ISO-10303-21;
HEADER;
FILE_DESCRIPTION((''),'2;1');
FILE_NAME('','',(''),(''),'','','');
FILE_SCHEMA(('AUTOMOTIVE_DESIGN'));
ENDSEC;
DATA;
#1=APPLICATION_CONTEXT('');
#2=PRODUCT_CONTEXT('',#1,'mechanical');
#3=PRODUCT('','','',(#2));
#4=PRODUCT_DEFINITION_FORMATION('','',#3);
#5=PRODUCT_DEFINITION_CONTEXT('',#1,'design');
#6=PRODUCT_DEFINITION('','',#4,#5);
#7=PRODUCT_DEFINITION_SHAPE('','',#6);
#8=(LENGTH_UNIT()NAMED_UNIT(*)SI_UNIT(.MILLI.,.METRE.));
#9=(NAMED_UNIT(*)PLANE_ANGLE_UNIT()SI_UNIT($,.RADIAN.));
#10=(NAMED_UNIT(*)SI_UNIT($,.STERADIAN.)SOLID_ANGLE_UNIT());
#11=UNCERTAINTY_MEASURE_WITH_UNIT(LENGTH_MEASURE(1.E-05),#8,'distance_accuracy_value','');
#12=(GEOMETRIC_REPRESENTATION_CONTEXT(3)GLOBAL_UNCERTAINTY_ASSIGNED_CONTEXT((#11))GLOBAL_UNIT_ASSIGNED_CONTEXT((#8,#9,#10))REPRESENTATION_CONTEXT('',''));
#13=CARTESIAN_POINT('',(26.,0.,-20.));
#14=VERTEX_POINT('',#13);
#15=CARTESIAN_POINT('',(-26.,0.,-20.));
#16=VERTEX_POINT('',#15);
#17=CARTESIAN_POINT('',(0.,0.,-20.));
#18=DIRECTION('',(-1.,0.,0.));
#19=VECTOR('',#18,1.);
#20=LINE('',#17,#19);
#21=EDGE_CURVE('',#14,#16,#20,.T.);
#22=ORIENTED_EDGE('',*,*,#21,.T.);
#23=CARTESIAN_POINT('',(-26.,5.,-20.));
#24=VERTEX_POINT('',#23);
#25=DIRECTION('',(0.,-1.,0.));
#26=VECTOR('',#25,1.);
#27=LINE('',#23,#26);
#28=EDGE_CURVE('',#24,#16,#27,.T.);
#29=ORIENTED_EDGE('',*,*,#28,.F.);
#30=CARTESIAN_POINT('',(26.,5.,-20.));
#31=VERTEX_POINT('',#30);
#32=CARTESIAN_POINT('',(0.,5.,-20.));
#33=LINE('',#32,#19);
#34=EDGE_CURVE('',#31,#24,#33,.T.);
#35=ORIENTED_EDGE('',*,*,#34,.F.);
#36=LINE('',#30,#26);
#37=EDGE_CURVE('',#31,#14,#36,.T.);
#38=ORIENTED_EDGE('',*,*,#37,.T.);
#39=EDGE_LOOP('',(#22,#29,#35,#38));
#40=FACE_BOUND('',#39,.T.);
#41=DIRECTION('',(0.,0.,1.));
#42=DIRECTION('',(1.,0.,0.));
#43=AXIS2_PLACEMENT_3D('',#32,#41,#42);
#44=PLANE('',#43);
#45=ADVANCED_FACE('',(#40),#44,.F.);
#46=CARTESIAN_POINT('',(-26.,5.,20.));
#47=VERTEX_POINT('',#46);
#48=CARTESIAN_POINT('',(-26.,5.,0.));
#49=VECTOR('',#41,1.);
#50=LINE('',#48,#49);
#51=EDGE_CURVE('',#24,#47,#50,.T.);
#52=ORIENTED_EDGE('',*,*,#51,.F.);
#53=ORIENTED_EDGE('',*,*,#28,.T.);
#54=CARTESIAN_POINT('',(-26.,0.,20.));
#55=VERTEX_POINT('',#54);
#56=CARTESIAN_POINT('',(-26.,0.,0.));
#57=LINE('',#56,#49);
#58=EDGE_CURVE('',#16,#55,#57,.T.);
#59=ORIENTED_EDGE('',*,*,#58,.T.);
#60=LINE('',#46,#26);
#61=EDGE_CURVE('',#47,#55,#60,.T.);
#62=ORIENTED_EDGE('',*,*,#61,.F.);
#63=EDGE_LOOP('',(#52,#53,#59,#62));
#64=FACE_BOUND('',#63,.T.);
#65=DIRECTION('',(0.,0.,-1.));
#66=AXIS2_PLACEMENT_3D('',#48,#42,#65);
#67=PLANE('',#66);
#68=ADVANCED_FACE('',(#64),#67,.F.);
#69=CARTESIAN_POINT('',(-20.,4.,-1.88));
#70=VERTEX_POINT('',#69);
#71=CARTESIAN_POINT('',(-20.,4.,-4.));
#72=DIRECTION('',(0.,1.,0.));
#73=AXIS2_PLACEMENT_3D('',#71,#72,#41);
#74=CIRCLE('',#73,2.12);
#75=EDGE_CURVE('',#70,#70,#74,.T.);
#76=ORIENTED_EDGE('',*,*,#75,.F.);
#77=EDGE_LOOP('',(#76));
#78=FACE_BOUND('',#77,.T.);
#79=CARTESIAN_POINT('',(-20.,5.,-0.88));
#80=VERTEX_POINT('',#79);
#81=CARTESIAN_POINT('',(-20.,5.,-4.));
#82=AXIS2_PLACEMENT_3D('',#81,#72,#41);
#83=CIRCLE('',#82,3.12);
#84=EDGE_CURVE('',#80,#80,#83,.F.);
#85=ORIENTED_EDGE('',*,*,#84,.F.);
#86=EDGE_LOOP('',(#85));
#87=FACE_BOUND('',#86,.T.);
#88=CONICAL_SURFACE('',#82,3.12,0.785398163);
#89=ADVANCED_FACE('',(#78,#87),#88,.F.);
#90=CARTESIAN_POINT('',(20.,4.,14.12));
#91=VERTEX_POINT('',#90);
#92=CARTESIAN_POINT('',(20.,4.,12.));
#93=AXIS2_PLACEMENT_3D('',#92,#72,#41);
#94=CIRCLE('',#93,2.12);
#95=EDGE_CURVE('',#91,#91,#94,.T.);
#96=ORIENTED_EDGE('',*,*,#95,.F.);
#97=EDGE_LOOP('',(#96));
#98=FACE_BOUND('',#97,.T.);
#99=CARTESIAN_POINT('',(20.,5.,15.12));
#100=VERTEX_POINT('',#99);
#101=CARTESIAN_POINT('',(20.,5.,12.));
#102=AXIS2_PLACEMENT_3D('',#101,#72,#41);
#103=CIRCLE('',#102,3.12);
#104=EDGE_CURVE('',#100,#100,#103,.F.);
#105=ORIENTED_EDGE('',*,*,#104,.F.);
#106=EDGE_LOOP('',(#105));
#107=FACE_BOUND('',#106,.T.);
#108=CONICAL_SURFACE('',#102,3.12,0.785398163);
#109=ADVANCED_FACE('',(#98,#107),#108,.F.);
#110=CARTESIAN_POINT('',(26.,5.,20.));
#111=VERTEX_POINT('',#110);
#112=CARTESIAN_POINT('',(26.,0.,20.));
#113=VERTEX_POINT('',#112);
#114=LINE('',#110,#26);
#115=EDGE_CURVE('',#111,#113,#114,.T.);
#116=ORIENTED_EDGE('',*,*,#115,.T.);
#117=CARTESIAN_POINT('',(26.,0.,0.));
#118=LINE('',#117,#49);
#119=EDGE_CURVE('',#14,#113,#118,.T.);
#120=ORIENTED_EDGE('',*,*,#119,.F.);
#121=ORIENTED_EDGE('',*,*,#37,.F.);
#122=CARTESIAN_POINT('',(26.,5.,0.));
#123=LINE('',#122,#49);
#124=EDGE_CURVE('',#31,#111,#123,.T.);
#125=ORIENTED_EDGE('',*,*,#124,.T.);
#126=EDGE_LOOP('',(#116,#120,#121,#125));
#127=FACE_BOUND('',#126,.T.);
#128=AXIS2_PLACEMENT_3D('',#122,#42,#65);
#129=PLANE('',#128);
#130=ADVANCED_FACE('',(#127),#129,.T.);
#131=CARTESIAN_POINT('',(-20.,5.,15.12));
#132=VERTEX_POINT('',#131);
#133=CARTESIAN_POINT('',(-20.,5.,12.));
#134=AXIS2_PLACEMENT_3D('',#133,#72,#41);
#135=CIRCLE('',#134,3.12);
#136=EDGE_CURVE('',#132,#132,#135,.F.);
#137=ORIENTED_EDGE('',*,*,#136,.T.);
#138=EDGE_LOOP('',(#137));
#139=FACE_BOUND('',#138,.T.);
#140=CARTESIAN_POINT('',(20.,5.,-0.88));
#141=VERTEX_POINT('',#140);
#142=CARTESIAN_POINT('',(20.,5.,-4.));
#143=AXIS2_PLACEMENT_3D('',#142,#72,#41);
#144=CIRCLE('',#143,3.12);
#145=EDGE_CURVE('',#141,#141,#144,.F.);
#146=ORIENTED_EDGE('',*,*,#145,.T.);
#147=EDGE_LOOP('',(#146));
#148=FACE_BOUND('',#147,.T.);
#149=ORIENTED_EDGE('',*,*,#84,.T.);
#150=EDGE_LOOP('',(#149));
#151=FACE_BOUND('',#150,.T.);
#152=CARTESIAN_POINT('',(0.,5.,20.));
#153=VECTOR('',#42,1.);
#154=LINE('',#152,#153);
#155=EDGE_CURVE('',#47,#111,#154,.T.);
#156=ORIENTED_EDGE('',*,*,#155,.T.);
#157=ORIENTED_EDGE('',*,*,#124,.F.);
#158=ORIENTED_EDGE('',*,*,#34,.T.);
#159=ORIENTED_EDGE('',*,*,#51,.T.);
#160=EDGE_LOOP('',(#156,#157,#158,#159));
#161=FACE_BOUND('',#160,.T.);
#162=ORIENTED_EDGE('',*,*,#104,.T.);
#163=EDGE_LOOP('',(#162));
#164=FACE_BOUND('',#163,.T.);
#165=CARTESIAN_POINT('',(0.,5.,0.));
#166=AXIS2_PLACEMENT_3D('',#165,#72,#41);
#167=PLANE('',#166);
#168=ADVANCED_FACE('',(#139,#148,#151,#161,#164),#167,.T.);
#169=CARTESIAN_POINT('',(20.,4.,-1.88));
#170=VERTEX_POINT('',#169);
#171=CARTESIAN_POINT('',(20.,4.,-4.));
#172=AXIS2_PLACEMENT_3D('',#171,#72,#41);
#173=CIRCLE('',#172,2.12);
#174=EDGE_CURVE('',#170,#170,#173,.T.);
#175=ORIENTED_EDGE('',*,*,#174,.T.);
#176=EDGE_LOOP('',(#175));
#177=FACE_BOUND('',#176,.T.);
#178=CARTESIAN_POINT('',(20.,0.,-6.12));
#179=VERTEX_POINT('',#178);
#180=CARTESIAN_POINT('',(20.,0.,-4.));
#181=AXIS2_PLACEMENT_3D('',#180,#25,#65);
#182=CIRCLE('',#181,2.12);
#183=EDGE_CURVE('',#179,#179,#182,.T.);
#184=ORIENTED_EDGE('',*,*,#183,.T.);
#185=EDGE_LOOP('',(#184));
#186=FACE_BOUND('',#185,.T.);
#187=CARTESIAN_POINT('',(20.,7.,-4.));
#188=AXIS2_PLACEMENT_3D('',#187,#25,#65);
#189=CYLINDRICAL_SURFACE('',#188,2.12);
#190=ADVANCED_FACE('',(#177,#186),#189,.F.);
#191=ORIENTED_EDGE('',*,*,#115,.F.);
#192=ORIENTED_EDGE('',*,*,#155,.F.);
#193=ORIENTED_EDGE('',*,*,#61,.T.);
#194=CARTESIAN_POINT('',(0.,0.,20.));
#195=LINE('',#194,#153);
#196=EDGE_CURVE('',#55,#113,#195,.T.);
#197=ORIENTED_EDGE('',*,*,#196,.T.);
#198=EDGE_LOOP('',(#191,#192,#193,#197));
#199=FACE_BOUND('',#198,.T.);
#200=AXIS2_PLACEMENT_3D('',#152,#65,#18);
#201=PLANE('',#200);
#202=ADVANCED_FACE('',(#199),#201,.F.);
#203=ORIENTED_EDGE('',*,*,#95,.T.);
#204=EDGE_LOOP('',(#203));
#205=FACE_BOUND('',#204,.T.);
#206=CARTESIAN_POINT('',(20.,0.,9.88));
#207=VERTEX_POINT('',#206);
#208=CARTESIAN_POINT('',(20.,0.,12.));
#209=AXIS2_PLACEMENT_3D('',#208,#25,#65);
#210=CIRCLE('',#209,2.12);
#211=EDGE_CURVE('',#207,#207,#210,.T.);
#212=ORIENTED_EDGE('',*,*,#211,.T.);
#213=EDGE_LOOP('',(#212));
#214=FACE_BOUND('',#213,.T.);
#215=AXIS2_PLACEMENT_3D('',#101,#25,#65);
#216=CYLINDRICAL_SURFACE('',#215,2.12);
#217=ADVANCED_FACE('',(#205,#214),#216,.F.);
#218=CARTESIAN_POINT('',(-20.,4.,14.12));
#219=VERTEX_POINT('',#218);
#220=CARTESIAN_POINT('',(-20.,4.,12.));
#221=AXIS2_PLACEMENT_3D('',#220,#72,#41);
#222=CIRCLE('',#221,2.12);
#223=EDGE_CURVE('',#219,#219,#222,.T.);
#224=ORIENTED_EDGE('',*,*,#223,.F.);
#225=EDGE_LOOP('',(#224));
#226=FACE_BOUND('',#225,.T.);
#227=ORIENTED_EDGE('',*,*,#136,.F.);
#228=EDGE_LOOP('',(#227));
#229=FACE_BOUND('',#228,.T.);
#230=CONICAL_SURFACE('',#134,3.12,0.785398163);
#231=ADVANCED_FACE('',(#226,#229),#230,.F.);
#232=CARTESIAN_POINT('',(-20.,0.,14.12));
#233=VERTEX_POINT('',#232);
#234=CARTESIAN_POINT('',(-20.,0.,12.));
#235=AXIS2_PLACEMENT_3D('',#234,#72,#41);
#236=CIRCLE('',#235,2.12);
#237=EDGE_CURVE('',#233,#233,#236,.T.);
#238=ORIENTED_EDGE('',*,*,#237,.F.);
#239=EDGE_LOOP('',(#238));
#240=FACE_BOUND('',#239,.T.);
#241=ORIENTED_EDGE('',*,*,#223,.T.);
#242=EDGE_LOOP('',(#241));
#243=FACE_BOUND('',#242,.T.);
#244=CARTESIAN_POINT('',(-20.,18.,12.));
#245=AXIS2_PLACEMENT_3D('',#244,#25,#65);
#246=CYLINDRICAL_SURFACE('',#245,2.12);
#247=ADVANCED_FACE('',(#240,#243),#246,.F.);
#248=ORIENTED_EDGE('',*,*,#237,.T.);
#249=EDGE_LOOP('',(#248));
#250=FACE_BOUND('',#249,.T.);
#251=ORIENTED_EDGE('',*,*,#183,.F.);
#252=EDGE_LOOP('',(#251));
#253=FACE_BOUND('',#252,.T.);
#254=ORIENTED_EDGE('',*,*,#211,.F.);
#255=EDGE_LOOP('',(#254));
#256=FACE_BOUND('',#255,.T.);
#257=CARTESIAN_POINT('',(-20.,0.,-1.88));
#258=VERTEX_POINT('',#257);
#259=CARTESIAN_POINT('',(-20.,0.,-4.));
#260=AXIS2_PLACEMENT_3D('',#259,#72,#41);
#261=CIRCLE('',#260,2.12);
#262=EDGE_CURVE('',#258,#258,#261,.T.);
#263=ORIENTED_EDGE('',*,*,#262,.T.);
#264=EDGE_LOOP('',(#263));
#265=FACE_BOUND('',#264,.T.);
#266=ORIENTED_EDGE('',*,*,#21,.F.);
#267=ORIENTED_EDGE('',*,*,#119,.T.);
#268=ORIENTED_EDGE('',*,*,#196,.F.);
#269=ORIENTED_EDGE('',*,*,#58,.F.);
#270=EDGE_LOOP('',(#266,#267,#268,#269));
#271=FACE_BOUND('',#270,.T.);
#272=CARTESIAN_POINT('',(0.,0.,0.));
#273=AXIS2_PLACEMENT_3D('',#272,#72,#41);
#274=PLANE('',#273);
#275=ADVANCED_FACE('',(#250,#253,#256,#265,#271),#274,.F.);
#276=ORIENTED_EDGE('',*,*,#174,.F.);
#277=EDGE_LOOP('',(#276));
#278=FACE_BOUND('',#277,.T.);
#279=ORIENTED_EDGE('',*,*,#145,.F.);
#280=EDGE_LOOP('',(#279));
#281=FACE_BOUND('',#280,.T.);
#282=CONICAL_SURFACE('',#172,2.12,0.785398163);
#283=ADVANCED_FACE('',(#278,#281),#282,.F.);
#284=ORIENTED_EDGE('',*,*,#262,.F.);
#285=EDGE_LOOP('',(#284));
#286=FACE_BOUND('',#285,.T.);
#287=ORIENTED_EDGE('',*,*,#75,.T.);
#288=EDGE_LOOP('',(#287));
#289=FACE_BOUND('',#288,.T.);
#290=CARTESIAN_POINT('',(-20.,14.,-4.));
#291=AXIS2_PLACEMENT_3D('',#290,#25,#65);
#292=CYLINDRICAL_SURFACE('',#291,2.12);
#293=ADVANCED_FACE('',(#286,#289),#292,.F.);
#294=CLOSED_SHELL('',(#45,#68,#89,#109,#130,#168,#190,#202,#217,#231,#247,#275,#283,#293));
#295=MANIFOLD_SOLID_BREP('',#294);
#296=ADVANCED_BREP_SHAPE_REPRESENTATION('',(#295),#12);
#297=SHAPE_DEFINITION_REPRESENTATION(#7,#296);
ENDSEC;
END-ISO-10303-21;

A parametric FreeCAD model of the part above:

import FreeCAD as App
import Part
import Sketcher
Q = App.Units.Quantity


def edges_at(feature, points):
    """Names of the edges that pass closest to the given points."""
    edges = feature.Shape.Edges
    near = lambda p: min(range(len(edges)), key=lambda i: edges[i].distToShape(Part.Vertex(*p))[0])
    return sorted({f"Edge{near(p) + 1}" for p in points})


def add_polygon(sketch, points):
    """Adds a closed chain of lines whose ends are joined by coincident constraints."""
    first, n = sketch.GeometryCount, len(points)
    for a, b in zip(points, points[1:] + points[:1]):
        sketch.addGeometry(Part.LineSegment(App.Vector(*a, 0), App.Vector(*b, 0)), False)
    for i in range(n):
        sketch.addConstraint(Sketcher.Constraint("Coincident", first + i, 2, first + (i + 1) % n, 1))

doc = App.newDocument("Part")
body = doc.addObject("PartDesign::Body", "Body")

sketch1 = body.newObject("Sketcher::SketchObject", "Sketch")
sketch1.AttachmentSupport = (doc.getObject("XZ_Plane"), [""])
sketch1.MapMode = "FlatFace"
add_polygon(sketch1, [(-26, -20), (-26, 20), (26, 20), (26, -20)])
sketch1.addGeometry(Part.Circle(App.Vector(-20, 12, 0), App.Vector(0, 0, 1), 2.8), False)
sketch1.addGeometry(Part.Circle(App.Vector(20, 12, 0), App.Vector(0, 0, 1), 2.8), False)
sketch1.addGeometry(Part.Circle(App.Vector(-20, -4, 0), App.Vector(0, 0, 1), 2.8), False)
sketch1.addGeometry(Part.Circle(App.Vector(20, -4, 0), App.Vector(0, 0, 1), 2.8), False)
sketch1.addConstraint([
    Sketcher.Constraint("Vertical", 0),
    Sketcher.Constraint("Horizontal", 1),
    Sketcher.Constraint("Vertical", 2),
    Sketcher.Constraint("Horizontal", 3),
    Sketcher.Constraint("Equal", 4, 5),
    Sketcher.Constraint("Equal", 5, 6),
    Sketcher.Constraint("Equal", 6, 7),
    Sketcher.Constraint("Symmetric", 0, 2, 2, 2, -1, 1),
    Sketcher.Constraint("Symmetric", 4, 3, 5, 3, -2),
    Sketcher.Constraint("Symmetric", 6, 3, 7, 3, -2),
    Sketcher.Constraint("Vertical", 4, 3, 6, 3),
    Sketcher.Constraint("Diameter", 4, Q("5.5 mm")),
    Sketcher.Constraint("DistanceX", 1, 1, 1, 2, Q("52 mm")),
    Sketcher.Constraint("DistanceY", 0, 1, 0, 2, Q("40 mm")),
    Sketcher.Constraint("DistanceX", 4, 3, -1, 1, Q("20 mm")),
    Sketcher.Constraint("DistanceY", -1, 1, 4, 3, Q("12 mm")),
    Sketcher.Constraint("DistanceY", 6, 3, -1, 1, Q("4 mm")),
])
pad1 = body.newObject("PartDesign::Pad", "Pad")
pad1.Profile = sketch1
pad1.Length = 5
pad1.Reversed = True

sketch2 = body.newObject("Sketcher::SketchObject", "Sketch001")
sketch2.AttachmentSupport = (doc.getObject("XZ_Plane"), [""])
sketch2.MapMode = "FlatFace"
sketch2.addGeometry(Part.Circle(App.Vector(20, -4, 0), App.Vector(0, 0, 1), 2.8), False)
sketch2.addConstraint([
    Sketcher.Constraint("Diameter", 0, Q("5.5 mm")),
    Sketcher.Constraint("DistanceX", -1, 1, 0, 3, Q("20 mm")),
    Sketcher.Constraint("DistanceY", 0, 3, -1, 1, Q("4 mm")),
])
pad2 = body.newObject("PartDesign::Pad", "Pad001")
pad2.Profile = sketch2
pad2.Length = 5
pad2.Reversed = True

sketch3 = body.newObject("Sketcher::SketchObject", "Sketch002")
sketch3.AttachmentSupport = (doc.getObject("XZ_Plane"), [""])
sketch3.MapMode = "FlatFace"
sketch3.addGeometry(Part.Circle(App.Vector(20, -4, 0), App.Vector(0, 0, 1), 2.1), False)
sketch3.addConstraint([
    Sketcher.Constraint("Diameter", 0, Q("4.24 mm")),
    Sketcher.Constraint("DistanceX", -1, 1, 0, 3, Q("20 mm")),
    Sketcher.Constraint("DistanceY", 0, 3, -1, 1, Q("4 mm")),
])
pocket1 = body.newObject("PartDesign::Pocket", "Pocket")
pocket1.Profile = sketch3
pocket1.Length = 7
doc.recompute()

chamfer = body.newObject("PartDesign::Chamfer", "Chamfer")
chamfer.Base = (pocket1, edges_at(pocket1, [(20, 5, -1.88)]))
chamfer.Size = 1

sketch4 = body.newObject("Sketcher::SketchObject", "Sketch003")
sketch4.AttachmentSupport = (doc.getObject("XZ_Plane"), [""])
sketch4.MapMode = "FlatFace"
sketch4.addGeometry(Part.Circle(App.Vector(20, 12, 0), App.Vector(0, 0, 1), 2.8), False)
sketch4.addConstraint([
    Sketcher.Constraint("Diameter", 0, Q("5.5 mm")),
    Sketcher.Constraint("DistanceX", -1, 1, 0, 3, Q("20 mm")),
    Sketcher.Constraint("DistanceY", -1, 1, 0, 3, Q("12 mm")),
])
pad3 = body.newObject("PartDesign::Pad", "Pad002")
pad3.Profile = sketch4
pad3.Length = 5
pad3.Reversed = True

sketch5 = body.newObject("Sketcher::SketchObject", "Sketch004")
sketch5.AttachmentSupport = (doc.getObject("XZ_Plane"), [""])
sketch5.MapMode = "FlatFace"
sketch5.addGeometry(Part.Circle(App.Vector(20, 12, 0), App.Vector(0, 0, 1), 2.1), False)
sketch5.addConstraint([
    Sketcher.Constraint("Diameter", 0, Q("4.24 mm")),
    Sketcher.Constraint("DistanceX", -1, 1, 0, 3, Q("20 mm")),
    Sketcher.Constraint("DistanceY", -1, 1, 0, 3, Q("12 mm")),
])
pocket2 = body.newObject("PartDesign::Pocket", "Pocket001")
pocket2.Profile = sketch5
pocket2.Length = 5

sketch6 = body.newObject("Sketcher::SketchObject", "Sketch005")
sketch6.AttachmentSupport = (doc.getObject("XZ_Plane"), [""])
sketch6.MapMode = "FlatFace"
sketch6.addGeometry(Part.Circle(App.Vector(-20, 12, 0), App.Vector(0, 0, 1), 2.8), False)
sketch6.addConstraint([
    Sketcher.Constraint("Diameter", 0, Q("5.5 mm")),
    Sketcher.Constraint("DistanceX", 0, 3, -1, 1, Q("20 mm")),
    Sketcher.Constraint("DistanceY", -1, 1, 0, 3, Q("12 mm")),
])
pad4 = body.newObject("PartDesign::Pad", "Pad003")
pad4.Profile = sketch6
pad4.Length = 5
pad4.Reversed = True

sketch7 = body.newObject("Sketcher::SketchObject", "Sketch006")
sketch7.AttachmentSupport = (doc.getObject("XZ_Plane"), [""])
sketch7.MapMode = "FlatFace"
sketch7.addGeometry(Part.Circle(App.Vector(-20, 12, 0), App.Vector(0, 0, 1), 2.1), False)
sketch7.addConstraint([
    Sketcher.Constraint("Diameter", 0, Q("4.24 mm")),
    Sketcher.Constraint("DistanceX", 0, 3, -1, 1, Q("20 mm")),
    Sketcher.Constraint("DistanceY", -1, 1, 0, 3, Q("12 mm")),
])
pocket3 = body.newObject("PartDesign::Pocket", "Pocket002")
pocket3.Profile = sketch7
pocket3.Length = 18

sketch8 = body.newObject("Sketcher::SketchObject", "Sketch007")
sketch8.AttachmentSupport = (doc.getObject("XZ_Plane"), [""])
sketch8.MapMode = "FlatFace"
sketch8.addGeometry(Part.Circle(App.Vector(-20, -4, 0), App.Vector(0, 0, 1), 2.8), False)
sketch8.addConstraint([
    Sketcher.Constraint("Diameter", 0, Q("5.5 mm")),
    Sketcher.Constraint("DistanceX", 0, 3, -1, 1, Q("20 mm")),
    Sketcher.Constraint("DistanceY", 0, 3, -1, 1, Q("4 mm")),
])
pad5 = body.newObject("PartDesign::Pad", "Pad004")
pad5.Profile = sketch8
pad5.Length = 5
pad5.Reversed = True

sketch9 = body.newObject("Sketcher::SketchObject", "Sketch008")
sketch9.AttachmentSupport = (doc.getObject("XZ_Plane"), [""])
sketch9.MapMode = "FlatFace"
sketch9.addGeometry(Part.Circle(App.Vector(-20, -4, 0), App.Vector(0, 0, 1), 2.1), False)
sketch9.addConstraint([
    Sketcher.Constraint("Diameter", 0, Q("4.24 mm")),
    Sketcher.Constraint("DistanceX", 0, 3, -1, 1, Q("20 mm")),
    Sketcher.Constraint("DistanceY", 0, 3, -1, 1, Q("4 mm")),
])
pocket4 = body.newObject("PartDesign::Pocket", "Pocket003")
pocket4.Profile = sketch9
pocket4.Length = 14
doc.recompute()

chamfer2 = body.newObject("PartDesign::Chamfer", "Chamfer001")
chamfer2.Base = (pocket4, edges_at(pocket4, [(-20, 5, -6.12)]))
chamfer2.Size = 1
doc.recompute()

chamfer3 = body.newObject("PartDesign::Chamfer", "Chamfer002")
chamfer3.Base = (chamfer2, edges_at(chamfer2, [(-20, 5, 9.88)]))
chamfer3.Size = 1
doc.recompute()

chamfer4 = body.newObject("PartDesign::Chamfer", "Chamfer003")
chamfer4.Base = (chamfer3, edges_at(chamfer3, [(20, 5, 14.12)]))
chamfer4.Size = 1

doc.recompute()
